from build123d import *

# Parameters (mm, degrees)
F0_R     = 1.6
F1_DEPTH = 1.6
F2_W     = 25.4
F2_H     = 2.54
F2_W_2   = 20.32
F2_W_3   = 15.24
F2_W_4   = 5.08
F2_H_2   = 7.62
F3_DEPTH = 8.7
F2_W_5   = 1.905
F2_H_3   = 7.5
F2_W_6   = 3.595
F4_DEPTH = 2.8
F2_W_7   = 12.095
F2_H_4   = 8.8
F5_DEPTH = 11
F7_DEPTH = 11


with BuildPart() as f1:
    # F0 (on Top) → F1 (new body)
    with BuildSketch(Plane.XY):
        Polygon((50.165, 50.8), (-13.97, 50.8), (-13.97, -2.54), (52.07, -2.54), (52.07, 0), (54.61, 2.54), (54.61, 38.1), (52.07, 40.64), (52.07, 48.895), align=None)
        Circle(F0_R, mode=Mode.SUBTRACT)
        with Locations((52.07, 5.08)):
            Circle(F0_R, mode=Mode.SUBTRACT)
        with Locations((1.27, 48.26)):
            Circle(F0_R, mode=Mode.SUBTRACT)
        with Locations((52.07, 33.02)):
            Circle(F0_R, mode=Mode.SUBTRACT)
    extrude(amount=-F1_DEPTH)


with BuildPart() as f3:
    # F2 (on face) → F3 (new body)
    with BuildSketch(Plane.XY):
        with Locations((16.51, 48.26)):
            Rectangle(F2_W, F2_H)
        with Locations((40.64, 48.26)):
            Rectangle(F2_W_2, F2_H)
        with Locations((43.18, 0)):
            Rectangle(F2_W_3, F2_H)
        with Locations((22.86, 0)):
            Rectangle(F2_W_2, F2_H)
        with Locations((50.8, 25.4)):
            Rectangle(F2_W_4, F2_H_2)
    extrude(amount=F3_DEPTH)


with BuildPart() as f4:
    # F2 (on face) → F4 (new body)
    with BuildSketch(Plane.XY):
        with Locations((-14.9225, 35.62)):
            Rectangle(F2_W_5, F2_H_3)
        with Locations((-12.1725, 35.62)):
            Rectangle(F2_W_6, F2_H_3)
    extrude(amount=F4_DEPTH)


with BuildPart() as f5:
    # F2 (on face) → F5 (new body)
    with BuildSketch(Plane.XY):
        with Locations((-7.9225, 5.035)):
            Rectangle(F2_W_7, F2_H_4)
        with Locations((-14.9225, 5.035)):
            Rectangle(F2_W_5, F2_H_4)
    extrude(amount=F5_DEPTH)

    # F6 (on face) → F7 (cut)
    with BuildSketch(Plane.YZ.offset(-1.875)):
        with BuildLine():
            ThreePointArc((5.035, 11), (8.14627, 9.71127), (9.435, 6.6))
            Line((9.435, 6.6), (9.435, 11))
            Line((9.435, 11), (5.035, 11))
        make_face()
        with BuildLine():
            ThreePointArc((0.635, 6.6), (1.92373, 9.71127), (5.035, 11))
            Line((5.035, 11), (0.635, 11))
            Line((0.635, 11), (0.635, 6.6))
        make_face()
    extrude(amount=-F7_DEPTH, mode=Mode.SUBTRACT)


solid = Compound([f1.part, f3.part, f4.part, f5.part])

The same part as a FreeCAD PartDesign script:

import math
import FreeCAD as App
import Part
import Sketcher
from FreeCAD import Vector
Q = App.Units.Quantity

doc = App.newDocument("Part")
body = doc.addObject("PartDesign::Body", "Body")

sketch1 = doc.addObject("Sketcher::SketchObject", "Sketch")
body.addObject(sketch1)
sketch1.AttachmentSupport = (doc.XY_Plane, [""])
sketch1.MapMode = "FlatFace"
sketch1.addGeometry([
    Part.LineSegment(Vector(50.2, 50.8, 0), Vector(-14, 50.8, 0)),
    Part.LineSegment(Vector(-14, 50.8, 0), Vector(-14, -2.5, 0)),
    Part.LineSegment(Vector(-14, -2.5, 0), Vector(52.1, -2.5, 0)),
    Part.LineSegment(Vector(52.1, -2.5, 0), Vector(52.1, 0, 0)),
    Part.LineSegment(Vector(52.1, 0, 0), Vector(54.6, 2.5, 0)),
    Part.LineSegment(Vector(54.6, 2.5, 0), Vector(54.6, 38.1, 0)),
    Part.LineSegment(Vector(54.6, 38.1, 0), Vector(52.1, 40.6, 0)),
    Part.LineSegment(Vector(52.1, 40.6, 0), Vector(52.1, 48.9, 0)),
    Part.LineSegment(Vector(52.1, 48.9, 0), Vector(50.2, 50.8, 0)),
    Part.Circle(Vector(0, 0, 0), Vector(0, 0, 1), 1.6),
    Part.Circle(Vector(52.1, 5.1, 0), Vector(0, 0, 1), 1.6),
    Part.Circle(Vector(1.3, 48.3, 0), Vector(0, 0, 1), 1.6),
    Part.Circle(Vector(52.1, 33, 0), Vector(0, 0, 1), 1.6),
], False)
sketch1.addConstraint([
    Sketcher.Constraint("Coincident", 0, 2, 1, 1),
    Sketcher.Constraint("Coincident", 1, 2, 2, 1),
    Sketcher.Constraint("Coincident", 2, 2, 3, 1),
    Sketcher.Constraint("Coincident", 3, 2, 4, 1),
    Sketcher.Constraint("Coincident", 4, 2, 5, 1),
    Sketcher.Constraint("Coincident", 5, 2, 6, 1),
    Sketcher.Constraint("Coincident", 6, 2, 7, 1),
    Sketcher.Constraint("Coincident", 7, 2, 8, 1),
    Sketcher.Constraint("Coincident", 8, 2, 0, 1),
    Sketcher.Constraint("Horizontal", 0),
    Sketcher.Constraint("Vertical", 1),
    Sketcher.Constraint("Horizontal", 2),
    Sketcher.Constraint("Vertical", 3),
    Sketcher.Constraint("Vertical", 5),
    Sketcher.Constraint("Vertical", 7),
    Sketcher.Constraint("Coincident", 9, 3, -1, 1),
    Sketcher.Constraint("Equal", 9, 10),
    Sketcher.Constraint("Equal", 10, 11),
    Sketcher.Constraint("Equal", 11, 12),
    Sketcher.Constraint("PointOnObject", 3, 2, -1),
    Sketcher.Constraint("Perpendicular", 4, 6),
    Sketcher.Constraint("Parallel", 6, 8),
    Sketcher.Constraint("Vertical", 10, 3, 12, 3),
    Sketcher.Constraint("Vertical", 12, 3, 2, 2),
    Sketcher.Constraint("Vertical", 3, 2, 6, 2),
    Sketcher.Constraint("Equal", 4, 6),
    Sketcher.Constraint("Diameter", 9, Q("3.2 mm")),
    Sketcher.Constraint("DistanceX", 2, 1, 2, 2, Q("66.04 mm")),
    Sketcher.Constraint("DistanceY", 1, 2, 1, 1, Q("53.34 mm")),
    Sketcher.Constraint("DistanceY", 3, 1, 3, 2, Q("2.54 mm")),
    Sketcher.Constraint("DistanceY", 5, 1, 5, 2, Q("35.56 mm")),
    Sketcher.Constraint("DistanceY", -1, 1, 5, 2, Q("38.1 mm")),
    Sketcher.Constraint("DistanceX", 11, 3, 10, 3, Q("50.8 mm")),
    Sketcher.Constraint("DistanceY", 1, 2, 11, 3, Q("50.8 mm")),
    Sketcher.Constraint("DistanceX", 0, 2, 0, 1, Q("64.135 mm")),
    Sketcher.Constraint("DistanceX", -1, 1, 10, 3, Q("52.07 mm")),
    Sketcher.Constraint("DistanceY", -1, 1, 10, 3, Q("5.08 mm")),
    Sketcher.Constraint("DistanceY", -1, 1, 12, 3, Q("33.02 mm")),
])
pad1 = doc.addObject("PartDesign::Pad", "Pad")
body.addObject(pad1)
pad1.Profile = sketch1
pad1.Length = 1.6
pad1.Reversed = True
body2 = doc.addObject("PartDesign::Body", "Body001")
body2.AllowCompound = True

sketch2 = doc.addObject("Sketcher::SketchObject", "Sketch001")
body2.addObject(sketch2)
sketch2.AttachmentSupport = (doc.getObject("XY_Plane001"), [""])
sketch2.MapMode = "FlatFace"
sketch2.addGeometry([
    Part.LineSegment(Vector(3.8, 49.5, 0), Vector(3.8, 47, 0)),
    Part.LineSegment(Vector(3.8, 47, 0), Vector(29.2, 47, 0)),
    Part.LineSegment(Vector(29.2, 47, 0), Vector(29.2, 49.5, 0)),
    Part.LineSegment(Vector(29.2, 49.5, 0), Vector(3.8, 49.5, 0)),
    Part.LineSegment(Vector(30.5, 49.5, 0), Vector(30.5, 47, 0)),
    Part.LineSegment(Vector(30.5, 47, 0), Vector(50.8, 47, 0)),
    Part.LineSegment(Vector(50.8, 47, 0), Vector(50.8, 49.5, 0)),
    Part.LineSegment(Vector(50.8, 49.5, 0), Vector(30.5, 49.5, 0)),
    Part.LineSegment(Vector(35.6, 1.3, 0), Vector(35.6, -1.3, 0)),
    Part.LineSegment(Vector(35.6, -1.3, 0), Vector(50.8, -1.3, 0)),
    Part.LineSegment(Vector(50.8, -1.3, 0), Vector(50.8, 1.3, 0)),
    Part.LineSegment(Vector(50.8, 1.3, 0), Vector(35.6, 1.3, 0)),
    Part.LineSegment(Vector(12.7, 1.3, 0), Vector(12.7, -1.3, 0)),
    Part.LineSegment(Vector(12.7, -1.3, 0), Vector(33, -1.3, 0)),
    Part.LineSegment(Vector(33, -1.3, 0), Vector(33, 1.3, 0)),
    Part.LineSegment(Vector(33, 1.3, 0), Vector(12.7, 1.3, 0)),
    Part.LineSegment(Vector(48.3, 29.2, 0), Vector(48.3, 21.6, 0)),
    Part.LineSegment(Vector(48.3, 21.6, 0), Vector(53.3, 21.6, 0)),
    Part.LineSegment(Vector(53.3, 21.6, 0), Vector(53.3, 29.2, 0)),
    Part.LineSegment(Vector(53.3, 29.2, 0), Vector(48.3, 29.2, 0)),
], False)
sketch2.addConstraint([
    Sketcher.Constraint("Coincident", 0, 2, 1, 1),
    Sketcher.Constraint("Coincident", 1, 2, 2, 1),
    Sketcher.Constraint("Coincident", 2, 2, 3, 1),
    Sketcher.Constraint("Coincident", 3, 2, 0, 1),
    Sketcher.Constraint("Coincident", 4, 2, 5, 1),
    Sketcher.Constraint("Coincident", 5, 2, 6, 1),
    Sketcher.Constraint("Coincident", 6, 2, 7, 1),
    Sketcher.Constraint("Coincident", 7, 2, 4, 1),
    Sketcher.Constraint("Coincident", 8, 2, 9, 1),
    Sketcher.Constraint("Coincident", 9, 2, 10, 1),
    Sketcher.Constraint("Coincident", 10, 2, 11, 1),
    Sketcher.Constraint("Coincident", 11, 2, 8, 1),
    Sketcher.Constraint("Coincident", 12, 2, 13, 1),
    Sketcher.Constraint("Coincident", 13, 2, 14, 1),
    Sketcher.Constraint("Coincident", 14, 2, 15, 1),
    Sketcher.Constraint("Coincident", 15, 2, 12, 1),
    Sketcher.Constraint("Coincident", 16, 2, 17, 1),
    Sketcher.Constraint("Coincident", 17, 2, 18, 1),
    Sketcher.Constraint("Coincident", 18, 2, 19, 1),
    Sketcher.Constraint("Coincident", 19, 2, 16, 1),
    Sketcher.Constraint("Vertical", 0),
    Sketcher.Constraint("Horizontal", 1),
    Sketcher.Constraint("Vertical", 2),
    Sketcher.Constraint("Horizontal", 3),
    Sketcher.Constraint("Vertical", 4),
    Sketcher.Constraint("Horizontal", 5),
    Sketcher.Constraint("Vertical", 6),
    Sketcher.Constraint("Horizontal", 7),
    Sketcher.Constraint("Vertical", 8),
    Sketcher.Constraint("Horizontal", 9),
    Sketcher.Constraint("Vertical", 10),
    Sketcher.Constraint("Horizontal", 11),
    Sketcher.Constraint("Vertical", 12),
    Sketcher.Constraint("Horizontal", 13),
    Sketcher.Constraint("Vertical", 14),
    Sketcher.Constraint("Horizontal", 15),
    Sketcher.Constraint("Vertical", 16),
    Sketcher.Constraint("Horizontal", 17),
    Sketcher.Constraint("Vertical", 18),
    Sketcher.Constraint("Horizontal", 19),
    Sketcher.Constraint("Horizontal", 1, 2, 4, 2),
    Sketcher.Constraint("Horizontal", 3, 2, 6, 2),
    Sketcher.Constraint("Horizontal", 9, 2, 12, 2),
    Sketcher.Constraint("Horizontal", 11, 2, 14, 2),
    Sketcher.Constraint("Vertical", 6, 2, 9, 2),
    Sketcher.Constraint("Equal", 7, 13),
    Sketcher.Constraint("Equal", 6, 8),
    Sketcher.Constraint("DistanceX", 1, 1, 1, 2, Q("25.4 mm")),
    Sketcher.Constraint("DistanceX", 5, 1, 5, 2, Q("20.32 mm")),
    Sketcher.Constraint("DistanceX", 9, 1, 9, 2, Q("15.24 mm")),
    Sketcher.Constraint("DistanceX", 17, 1, 17, 2, Q("5.08 mm")),
    Sketcher.Constraint("DistanceY", 0, 2, 0, 1, Q("2.54 mm")),
    Sketcher.Constraint("DistanceY", 16, 2, 16, 1, Q("7.62 mm")),
    Sketcher.Constraint("DistanceX", -1, 1, 5, 2, Q("50.8 mm")),
    Sketcher.Constraint("DistanceX", -1, 1, 12, 2, Q("12.7 mm")),
    Sketcher.Constraint("DistanceY", 8, 2, 7, 2, Q("50.8 mm")),
    Sketcher.Constraint("DistanceX", 11, 2, 16, 2, Q("12.7 mm")),
    Sketcher.Constraint("DistanceY", 16, 2, 5, 2, Q("25.4 mm")),
    Sketcher.Constraint("DistanceX", -1, 1, 0, 2, Q("3.81 mm")),
    Sketcher.Constraint("DistanceY", -1, 1, 0, 2, Q("46.99 mm")),
])
pad2 = doc.addObject("PartDesign::Pad", "Pad001")
body2.addObject(pad2)
pad2.Profile = sketch2
pad2.Length = 8.7
body3 = doc.addObject("PartDesign::Body", "Body002")

sketch3 = doc.addObject("Sketcher::SketchObject", "Sketch002")
body3.addObject(sketch3)
sketch3.AttachmentSupport = (doc.getObject("XY_Plane002"), [""])
sketch3.MapMode = "FlatFace"
sketch3.addGeometry([
    Part.LineSegment(Vector(-16, 39, 0), Vector(-16, 32, 0)),
    Part.LineSegment(Vector(-16, 32, 0), Vector(-10, 32, 0)),
    Part.LineSegment(Vector(-10, 32, 0), Vector(-10, 39, 0)),
    Part.LineSegment(Vector(-10, 39, 0), Vector(-16, 39, 0)),
], False)
sketch3.addConstraint([
    Sketcher.Constraint("Coincident", 0, 2, 1, 1),
    Sketcher.Constraint("Coincident", 1, 2, 2, 1),
    Sketcher.Constraint("Coincident", 2, 2, 3, 1),
    Sketcher.Constraint("Coincident", 3, 2, 0, 1),
    Sketcher.Constraint("Vertical", 0),
    Sketcher.Constraint("Horizontal", 1),
    Sketcher.Constraint("Vertical", 2),
    Sketcher.Constraint("Horizontal", 3),
    Sketcher.Constraint("DistanceX", 1, 1, 1, 2, Q("5.5 mm")),
    Sketcher.Constraint("DistanceY", 0, 2, 0, 1, Q("7.5 mm")),
    Sketcher.Constraint("DistanceY", -1, 1, 0, 2, Q("31.87 mm")),
    Sketcher.Constraint("DistanceX", 0, 2, -1, 1, Q("15.875 mm")),
])
pad3 = doc.addObject("PartDesign::Pad", "Pad002")
body3.addObject(pad3)
pad3.Profile = sketch3
pad3.Length = 2.8
body4 = doc.addObject("PartDesign::Body", "Body003")

sketch4 = doc.addObject("Sketcher::SketchObject", "Sketch003")
body4.addObject(sketch4)
sketch4.AttachmentSupport = (doc.getObject("XY_Plane003"), [""])
sketch4.MapMode = "FlatFace"
sketch4.addGeometry([
    Part.LineSegment(Vector(-2, 1, 0), Vector(-2, 9, 0)),
    Part.LineSegment(Vector(-2, 9, 0), Vector(-16, 9, 0)),
    Part.LineSegment(Vector(-16, 9, 0), Vector(-16, 1, 0)),
    Part.LineSegment(Vector(-16, 1, 0), Vector(-2, 1, 0)),
], False)
sketch4.addConstraint([
    Sketcher.Constraint("Coincident", 0, 2, 1, 1),
    Sketcher.Constraint("Coincident", 1, 2, 2, 1),
    Sketcher.Constraint("Coincident", 2, 2, 3, 1),
    Sketcher.Constraint("Coincident", 3, 2, 0, 1),
    Sketcher.Constraint("Vertical", 0),
    Sketcher.Constraint("Horizontal", 1),
    Sketcher.Constraint("Vertical", 2),
    Sketcher.Constraint("Horizontal", 3),
    Sketcher.Constraint("DistanceX", 1, 2, 1, 1, Q("14 mm")),
    Sketcher.Constraint("DistanceY", 0, 1, 0, 2, Q("8.8 mm")),
    Sketcher.Constraint("DistanceX", 0, 2, -1, 1, Q("1.875 mm")),
    Sketcher.Constraint("DistanceY", -1, 1, 0, 2, Q("9.435 mm")),
])
pad4 = doc.addObject("PartDesign::Pad", "Pad003")
body4.addObject(pad4)
pad4.Profile = sketch4
pad4.Length = 11

sketch5 = doc.addObject("Sketcher::SketchObject", "Sketch004")
body4.addObject(sketch5)
sketch5.AttachmentSupport = (doc.getObject("YZ_Plane003"), [""])
sketch5.MapMode = "FlatFace"
sketch5.AttachmentOffset = App.Placement(Vector(0, 0, -1.875), App.Rotation())
sketch5.addGeometry([
    Part.ArcOfCircle(Part.Circle(Vector(5, 6.6, 0), Vector(0, 0, 1), 4.4), math.radians(0), math.radians(90)),
    Part.LineSegment(Vector(9.4, 6.6, 0), Vector(9.4, 11, 0)),
    Part.LineSegment(Vector(9.4, 11, 0), Vector(5, 11, 0)),
    Part.ArcOfCircle(Part.Circle(Vector(5, 6.6, 0), Vector(0, 0, 1), 4.4), math.radians(90), math.radians(180)),
    Part.LineSegment(Vector(5, 11, 0), Vector(0.6, 11, 0)),
    Part.LineSegment(Vector(0.6, 11, 0), Vector(0.6, 6.6, 0)),
], False)
sketch5.addConstraint([
    Sketcher.Constraint("Tangent", 0, 1, 1, 1),
    Sketcher.Constraint("Coincident", 1, 2, 2, 1),
    Sketcher.Constraint("Tangent", 2, 2, 0, 2),
    Sketcher.Constraint("Tangent", 3, 1, 4, 1),
    Sketcher.Constraint("Coincident", 4, 2, 5, 1),
    Sketcher.Constraint("Tangent", 5, 2, 3, 2),
    Sketcher.Constraint("Vertical", 1),
    Sketcher.Constraint("Horizontal", 2),
    Sketcher.Constraint("Horizontal", 4),
    Sketcher.Constraint("Vertical", 5),
    Sketcher.Constraint("Coincident", 3, 3, 0, 3),
    Sketcher.Constraint("Equal", 0, 3),
    Sketcher.Constraint("Radius", 0, Q("4.399999 mm")),
    Sketcher.Constraint("DistanceY", -1, 1, 1, 2, Q("11 mm")),
    Sketcher.Constraint("DistanceX", -1, 1, 0, 3, Q("5.035001 mm")),
])
pocket1 = doc.addObject("PartDesign::Pocket", "Pocket")
body4.addObject(pocket1)
pocket1.Profile = sketch5
pocket1.Length = 11

doc.recompute()
